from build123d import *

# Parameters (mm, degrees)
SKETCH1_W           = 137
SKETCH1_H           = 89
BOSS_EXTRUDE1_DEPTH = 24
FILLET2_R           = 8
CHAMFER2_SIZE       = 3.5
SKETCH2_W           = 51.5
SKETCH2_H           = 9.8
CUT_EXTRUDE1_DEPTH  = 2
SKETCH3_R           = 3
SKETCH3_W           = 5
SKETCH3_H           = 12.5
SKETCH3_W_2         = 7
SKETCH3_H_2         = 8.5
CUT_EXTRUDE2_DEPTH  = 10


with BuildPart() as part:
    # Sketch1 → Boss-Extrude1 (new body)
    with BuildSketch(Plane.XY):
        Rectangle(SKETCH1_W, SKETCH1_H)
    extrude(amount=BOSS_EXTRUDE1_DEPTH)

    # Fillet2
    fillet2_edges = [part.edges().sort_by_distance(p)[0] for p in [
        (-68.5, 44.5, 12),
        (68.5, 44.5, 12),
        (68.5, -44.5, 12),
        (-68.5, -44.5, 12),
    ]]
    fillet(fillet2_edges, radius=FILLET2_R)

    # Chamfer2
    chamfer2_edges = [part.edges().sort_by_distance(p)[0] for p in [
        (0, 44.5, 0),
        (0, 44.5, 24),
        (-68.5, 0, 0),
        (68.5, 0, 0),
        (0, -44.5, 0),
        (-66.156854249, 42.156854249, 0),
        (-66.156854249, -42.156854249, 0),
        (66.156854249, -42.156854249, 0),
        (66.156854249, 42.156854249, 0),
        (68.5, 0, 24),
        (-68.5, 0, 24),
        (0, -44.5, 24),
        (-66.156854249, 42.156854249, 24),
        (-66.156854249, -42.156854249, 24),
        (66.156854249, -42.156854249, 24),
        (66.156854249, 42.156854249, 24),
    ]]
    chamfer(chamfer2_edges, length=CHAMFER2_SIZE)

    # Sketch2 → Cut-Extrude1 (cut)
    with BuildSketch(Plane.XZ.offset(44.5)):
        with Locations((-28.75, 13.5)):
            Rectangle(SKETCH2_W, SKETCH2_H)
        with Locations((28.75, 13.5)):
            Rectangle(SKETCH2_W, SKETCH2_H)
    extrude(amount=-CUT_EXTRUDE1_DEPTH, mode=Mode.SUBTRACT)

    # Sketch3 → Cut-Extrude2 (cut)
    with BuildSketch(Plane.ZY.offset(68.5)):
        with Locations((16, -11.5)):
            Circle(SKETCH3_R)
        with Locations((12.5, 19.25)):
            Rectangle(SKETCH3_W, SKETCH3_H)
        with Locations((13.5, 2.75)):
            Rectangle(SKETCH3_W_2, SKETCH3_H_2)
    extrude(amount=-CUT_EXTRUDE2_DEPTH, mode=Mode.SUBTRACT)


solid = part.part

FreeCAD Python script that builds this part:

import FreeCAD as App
import Part
import Sketcher
from FreeCAD import Vector
Q = App.Units.Quantity


def edges_at(feature, points):
    """Names of the edges that pass closest to the given points."""
    edges = feature.Shape.Edges
    near = lambda p: min(range(len(edges)), key=lambda i: edges[i].distToShape(Part.Vertex(*p))[0])
    return sorted({f"Edge{near(p) + 1}" for p in points})

doc = App.newDocument("Part")
body = doc.addObject("PartDesign::Body", "Body")

sketch1 = body.newObject("Sketcher::SketchObject", "Sketch")
sketch1.AttachmentSupport = (doc.getObject("XY_Plane"), [""])
sketch1.MapMode = "FlatFace"
sketch1.addGeometry(Part.LineSegment(Vector(-68, 44, 0), Vector(-68, -44, 0)), False)
sketch1.addGeometry(Part.LineSegment(Vector(-68, -44, 0), Vector(68, -44, 0)), False)
sketch1.addGeometry(Part.LineSegment(Vector(68, -44, 0), Vector(68, 44, 0)), False)
sketch1.addGeometry(Part.LineSegment(Vector(68, 44, 0), Vector(-68, 44, 0)), False)
sketch1.addConstraint(Sketcher.Constraint("Coincident", 0, 2, 1, 1))
sketch1.addConstraint(Sketcher.Constraint("Coincident", 1, 2, 2, 1))
sketch1.addConstraint(Sketcher.Constraint("Coincident", 2, 2, 3, 1))
sketch1.addConstraint(Sketcher.Constraint("Coincident", 3, 2, 0, 1))
sketch1.addConstraint(Sketcher.Constraint("Vertical", 0))
sketch1.addConstraint(Sketcher.Constraint("Horizontal", 1))
sketch1.addConstraint(Sketcher.Constraint("Vertical", 2))
sketch1.addConstraint(Sketcher.Constraint("Horizontal", 3))
sketch1.addConstraint(Sketcher.Constraint("Symmetric", 0, 2, 2, 2, -1, 1))
sketch1.addConstraint(Sketcher.Constraint("DistanceX", 1, 1, 1, 2, Q("137 mm")))
sketch1.addConstraint(Sketcher.Constraint("DistanceY", 0, 2, 0, 1, Q("89 mm")))
pad1 = body.newObject("PartDesign::Pad", "Pad")
pad1.Profile = sketch1
pad1.Length = 24
doc.recompute()

fillet = body.newObject("PartDesign::Fillet", "Fillet")
fillet.Base = (pad1, edges_at(pad1, [
    (-68.5, 44.5, 12),
    (68.5, 44.5, 12),
    (68.5, -44.5, 12),
    (-68.5, -44.5, 12),
]))
fillet.Radius = 8
doc.recompute()

chamfer = body.newObject("PartDesign::Chamfer", "Chamfer")
chamfer.Base = (fillet, edges_at(fillet, [
    (0, 44.5, 0),
    (0, 44.5, 24),
    (-68.5, 0, 0),
    (68.5, 0, 0),
    (0, -44.5, 0),
    (-66.157, 42.157, 0),
    (-66.157, -42.157, 0),
    (66.157, -42.157, 0),
    (66.157, 42.157, 0),
    (68.5, 0, 24),
    (-68.5, 0, 24),
    (0, -44.5, 24),
    (-66.157, 42.157, 24),
    (-66.157, -42.157, 24),
    (66.157, -42.157, 24),
    (66.157, 42.157, 24),
]))
chamfer.Size = 3.5

sketch2 = body.newObject("Sketcher::SketchObject", "Sketch001")
sketch2.AttachmentSupport = (doc.getObject("XZ_Plane"), [""])
sketch2.MapMode = "FlatFace"
sketch2.AttachmentOffset = App.Placement(Vector(0, 0, 44.5), App.Rotation())
sketch2.addGeometry(Part.LineSegment(Vector(-54, 18, 0), Vector(-54, 9, 0)), False)
sketch2.addGeometry(Part.LineSegment(Vector(-54, 9, 0), Vector(-3, 9, 0)), False)
sketch2.addGeometry(Part.LineSegment(Vector(-3, 9, 0), Vector(-3, 18, 0)), False)
sketch2.addGeometry(Part.LineSegment(Vector(-3, 18, 0), Vector(-54, 18, 0)), False)
sketch2.addGeometry(Part.LineSegment(Vector(3, 18, 0), Vector(3, 9, 0)), False)
sketch2.addGeometry(Part.LineSegment(Vector(3, 9, 0), Vector(54, 9, 0)), False)
sketch2.addGeometry(Part.LineSegment(Vector(54, 9, 0), Vector(54, 18, 0)), False)
sketch2.addGeometry(Part.LineSegment(Vector(54, 18, 0), Vector(3, 18, 0)), False)
sketch2.addConstraint(Sketcher.Constraint("Coincident", 0, 2, 1, 1))
sketch2.addConstraint(Sketcher.Constraint("Coincident", 1, 2, 2, 1))
sketch2.addConstraint(Sketcher.Constraint("Coincident", 2, 2, 3, 1))
sketch2.addConstraint(Sketcher.Constraint("Coincident", 3, 2, 0, 1))
sketch2.addConstraint(Sketcher.Constraint("Coincident", 4, 2, 5, 1))
sketch2.addConstraint(Sketcher.Constraint("Coincident", 5, 2, 6, 1))
sketch2.addConstraint(Sketcher.Constraint("Coincident", 6, 2, 7, 1))
sketch2.addConstraint(Sketcher.Constraint("Coincident", 7, 2, 4, 1))
sketch2.addConstraint(Sketcher.Constraint("Vertical", 0))
sketch2.addConstraint(Sketcher.Constraint("Horizontal", 1))
sketch2.addConstraint(Sketcher.Constraint("Vertical", 2))
sketch2.addConstraint(Sketcher.Constraint("Horizontal", 3))
sketch2.addConstraint(Sketcher.Constraint("Vertical", 4))
sketch2.addConstraint(Sketcher.Constraint("Horizontal", 5))
sketch2.addConstraint(Sketcher.Constraint("Vertical", 6))
sketch2.addConstraint(Sketcher.Constraint("Horizontal", 7))
sketch2.addConstraint(Sketcher.Constraint("Symmetric", 1, 2, 4, 2, -2))
sketch2.addConstraint(Sketcher.Constraint("Symmetric", 3, 2, 6, 2, -2))
sketch2.addConstraint(Sketcher.Constraint("DistanceX", 1, 1, 1, 2, Q("51.5 mm")))
sketch2.addConstraint(Sketcher.Constraint("DistanceY", 0, 2, 0, 1, Q("9.8 mm")))
sketch2.addConstraint(Sketcher.Constraint("DistanceX", 1, 2, -1, 1, Q("3 mm")))
sketch2.addConstraint(Sketcher.Constraint("DistanceY", -1, 1, 0, 2, Q("8.6 mm")))
pocket1 = body.newObject("PartDesign::Pocket", "Pocket")
pocket1.Profile = sketch2
pocket1.Length = 2

sketch3 = body.newObject("Sketcher::SketchObject", "Sketch002")
sketch3.AttachmentSupport = (doc.getObject("YZ_Plane"), [""])
sketch3.MapMode = "FlatFace"
sketch3.AttachmentOffset = App.Placement(Vector(0, 0, -68.5), App.Rotation())
sketch3.addGeometry(Part.Circle(Vector(-11.5, 16, 0), Vector(0, 0, 1), 3), False)
sketch3.addGeometry(Part.LineSegment(Vector(25.5, 10, 0), Vector(13, 10, 0)), False)
sketch3.addGeometry(Part.LineSegment(Vector(13, 10, 0), Vector(13, 15, 0)), False)
sketch3.addGeometry(Part.LineSegment(Vector(13, 15, 0), Vector(25.5, 15, 0)), False)
sketch3.addGeometry(Part.LineSegment(Vector(25.5, 15, 0), Vector(25.5, 10, 0)), False)
sketch3.addGeometry(Part.LineSegment(Vector(7, 10, 0), Vector(-1.5, 10, 0)), False)
sketch3.addGeometry(Part.LineSegment(Vector(-1.5, 10, 0), Vector(-1.5, 17, 0)), False)
sketch3.addGeometry(Part.LineSegment(Vector(-1.5, 17, 0), Vector(7, 17, 0)), False)
sketch3.addGeometry(Part.LineSegment(Vector(7, 17, 0), Vector(7, 10, 0)), False)
sketch3.addConstraint(Sketcher.Constraint("Coincident", 1, 2, 2, 1))
sketch3.addConstraint(Sketcher.Constraint("Coincident", 2, 2, 3, 1))
sketch3.addConstraint(Sketcher.Constraint("Coincident", 3, 2, 4, 1))
sketch3.addConstraint(Sketcher.Constraint("Coincident", 4, 2, 1, 1))
sketch3.addConstraint(Sketcher.Constraint("Coincident", 5, 2, 6, 1))
sketch3.addConstraint(Sketcher.Constraint("Coincident", 6, 2, 7, 1))
sketch3.addConstraint(Sketcher.Constraint("Coincident", 7, 2, 8, 1))
sketch3.addConstraint(Sketcher.Constraint("Coincident", 8, 2, 5, 1))
sketch3.addConstraint(Sketcher.Constraint("Horizontal", 1))
sketch3.addConstraint(Sketcher.Constraint("Vertical", 2))
sketch3.addConstraint(Sketcher.Constraint("Horizontal", 3))
sketch3.addConstraint(Sketcher.Constraint("Vertical", 4))
sketch3.addConstraint(Sketcher.Constraint("Horizontal", 5))
sketch3.addConstraint(Sketcher.Constraint("Vertical", 6))
sketch3.addConstraint(Sketcher.Constraint("Horizontal", 7))
sketch3.addConstraint(Sketcher.Constraint("Vertical", 8))
sketch3.addConstraint(Sketcher.Constraint("Horizontal", 4, 2, 5, 2))
sketch3.addConstraint(Sketcher.Constraint("Diameter", 0, Q("6 mm")))
sketch3.addConstraint(Sketcher.Constraint("DistanceY", 2, 1, 2, 2, Q("5 mm")))
sketch3.addConstraint(Sketcher.Constraint("DistanceY", 6, 1, 6, 2, Q("7 mm")))
sketch3.addConstraint(Sketcher.Constraint("DistanceX", 1, 2, 1, 1, Q("12.5 mm")))
sketch3.addConstraint(Sketcher.Constraint("DistanceX", 5, 2, 5, 1, Q("8.5 mm")))
sketch3.addConstraint(Sketcher.Constraint("DistanceY", -1, 1, 0, 3, Q("16 mm")))
sketch3.addConstraint(Sketcher.Constraint("DistanceX", -1, 1, 1, 2, Q("13 mm")))
sketch3.addConstraint(Sketcher.Constraint("DistanceY", -1, 1, 1, 2, Q("10 mm")))
sketch3.addConstraint(Sketcher.Constraint("DistanceX", -1, 1, 7, 2, Q("7 mm")))
sketch3.addConstraint(Sketcher.Constraint("DistanceX", 0, 3, 3, 2, Q("37 mm")))
pocket2 = body.newObject("PartDesign::Pocket", "Pocket001")
pocket2.Profile = sketch3
pocket2.Length = 10
pocket2.Reversed = True

doc.recompute()
